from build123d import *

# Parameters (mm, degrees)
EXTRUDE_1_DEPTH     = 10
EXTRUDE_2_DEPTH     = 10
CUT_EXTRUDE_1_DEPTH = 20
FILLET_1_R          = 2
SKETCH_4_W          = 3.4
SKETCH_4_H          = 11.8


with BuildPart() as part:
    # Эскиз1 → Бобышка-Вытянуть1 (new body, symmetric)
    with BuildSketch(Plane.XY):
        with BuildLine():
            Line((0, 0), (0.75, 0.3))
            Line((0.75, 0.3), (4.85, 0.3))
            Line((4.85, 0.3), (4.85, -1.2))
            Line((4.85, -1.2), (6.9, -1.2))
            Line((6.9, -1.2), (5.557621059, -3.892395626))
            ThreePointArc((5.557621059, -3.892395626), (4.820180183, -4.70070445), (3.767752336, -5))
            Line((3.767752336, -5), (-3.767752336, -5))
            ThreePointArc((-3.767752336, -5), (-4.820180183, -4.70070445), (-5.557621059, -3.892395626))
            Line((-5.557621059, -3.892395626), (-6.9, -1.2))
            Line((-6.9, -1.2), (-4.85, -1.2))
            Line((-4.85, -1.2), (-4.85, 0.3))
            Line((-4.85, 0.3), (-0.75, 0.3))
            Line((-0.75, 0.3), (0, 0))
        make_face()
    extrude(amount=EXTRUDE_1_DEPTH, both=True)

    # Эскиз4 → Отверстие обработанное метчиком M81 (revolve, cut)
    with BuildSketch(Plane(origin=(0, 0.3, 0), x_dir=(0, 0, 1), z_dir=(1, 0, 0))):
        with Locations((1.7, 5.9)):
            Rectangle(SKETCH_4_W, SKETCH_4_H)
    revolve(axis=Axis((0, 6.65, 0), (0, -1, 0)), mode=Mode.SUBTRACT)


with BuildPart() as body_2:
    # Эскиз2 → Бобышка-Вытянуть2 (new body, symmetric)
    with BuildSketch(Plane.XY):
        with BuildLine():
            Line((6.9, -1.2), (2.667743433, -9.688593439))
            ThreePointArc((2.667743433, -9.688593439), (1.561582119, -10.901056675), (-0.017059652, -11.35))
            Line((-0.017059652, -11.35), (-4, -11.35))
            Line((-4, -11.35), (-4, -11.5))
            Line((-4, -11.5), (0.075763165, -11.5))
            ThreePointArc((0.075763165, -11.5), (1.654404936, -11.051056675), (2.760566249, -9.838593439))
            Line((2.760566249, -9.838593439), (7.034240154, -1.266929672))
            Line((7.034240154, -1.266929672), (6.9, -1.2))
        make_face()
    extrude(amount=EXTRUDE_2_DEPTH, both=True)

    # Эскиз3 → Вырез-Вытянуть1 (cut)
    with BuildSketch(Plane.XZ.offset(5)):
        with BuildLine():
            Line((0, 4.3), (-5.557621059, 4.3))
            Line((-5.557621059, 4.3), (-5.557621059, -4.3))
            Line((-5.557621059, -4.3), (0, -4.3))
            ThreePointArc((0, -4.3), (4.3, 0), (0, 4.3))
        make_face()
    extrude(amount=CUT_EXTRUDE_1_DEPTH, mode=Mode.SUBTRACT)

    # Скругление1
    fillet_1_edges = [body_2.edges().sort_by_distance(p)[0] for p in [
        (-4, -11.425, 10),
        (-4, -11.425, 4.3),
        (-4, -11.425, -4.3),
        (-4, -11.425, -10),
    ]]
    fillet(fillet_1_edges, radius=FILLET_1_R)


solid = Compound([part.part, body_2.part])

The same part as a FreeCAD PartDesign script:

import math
import FreeCAD as App
import Part
import Sketcher

V = App.Vector
Q = App.Units.Quantity


def edges_at(feature, points):
    """Names of the edges that pass closest to the given points."""
    edges = feature.Shape.Edges
    near = lambda p: min(range(len(edges)), key=lambda i: edges[i].distToShape(Part.Vertex(*p))[0])
    return sorted({f"Edge{near(p) + 1}" for p in points})


def add_polygon(sketch, points):
    """Adds a closed chain of lines whose ends are joined by coincident constraints."""
    first, n = sketch.GeometryCount, len(points)
    for a, b in zip(points, points[1:] + points[:1]):
        sketch.addGeometry(Part.LineSegment(App.Vector(*a, 0), App.Vector(*b, 0)), False)
    for i in range(n):
        sketch.addConstraint(Sketcher.Constraint("Coincident", first + i, 2, first + (i + 1) % n, 1))

doc = App.newDocument("Part")
body = doc.addObject("PartDesign::Body", "Body")

# Sketch on XY plane
sketch1 = doc.addObject("Sketcher::SketchObject", "Sketch")
body.addObject(sketch1)
sketch1.AttachmentSupport = (doc.XY_Plane, [""])
sketch1.MapMode = "FlatFace"
sketch1.addGeometry([
    Part.LineSegment(V(0.75, 0.3, 0), V(0, 0, 0)),  # 0
    Part.LineSegment(V(0, 0, 0), V(-0.75, 0.3, 0)),  # 1
    Part.LineSegment(V(-0.75, 0.3, 0), V(-4.85, 0.3, 0)),  # 2
    Part.LineSegment(V(-4.85, 0.3, 0), V(-4.85, -1.2, 0)),  # 3
    Part.LineSegment(V(-4.85, -1.2, 0), V(-6.9, -1.2, 0)),  # 4
    Part.LineSegment(V(-6.9, -1.2, 0), V(-5.557621, -3.892396, 0)),  # 5
    Part.ArcOfCircle(Part.Circle(V(-3.767752, -3, 0), V(0, 0, 1), 2), math.radians(-153.5), math.radians(-90)),  # 6
    Part.LineSegment(V(-3.767752, -5, 0), V(3.767752, -5, 0)),  # 7
    Part.ArcOfCircle(Part.Circle(V(3.767752, -3, 0), V(0, 0, 1), 2), math.radians(-90), math.radians(-26.5)),  # 8
    Part.LineSegment(V(5.557621, -3.892396, 0), V(6.9, -1.2, 0)),  # 9
    Part.LineSegment(V(6.9, -1.2, 0), V(4.85, -1.2, 0)),  # 10
    Part.LineSegment(V(4.85, -1.2, 0), V(4.85, 0.3, 0)),  # 11
    Part.LineSegment(V(4.85, 0.3, 0), V(0.75, 0.3, 0)),  # 12
], False)
sketch1.addConstraint([
    Sketcher.Constraint("Coincident", 0, 2, 1, 1),
    Sketcher.Constraint("Coincident", 1, 2, 2, 1),
    Sketcher.Constraint("Coincident", 2, 2, 3, 1),
    Sketcher.Constraint("Coincident", 3, 2, 4, 1),
    Sketcher.Constraint("Coincident", 4, 2, 5, 1),
    Sketcher.Constraint("Tangent", 5, 2, 6, 1),
    Sketcher.Constraint("Tangent", 6, 2, 7, 1),
    Sketcher.Constraint("Tangent", 7, 2, 8, 1),
    Sketcher.Constraint("Tangent", 8, 2, 9, 1),
    Sketcher.Constraint("Coincident", 9, 2, 10, 1),
    Sketcher.Constraint("Coincident", 10, 2, 11, 1),
    Sketcher.Constraint("Coincident", 11, 2, 12, 1),
    Sketcher.Constraint("Coincident", 12, 2, 0, 1),
    Sketcher.Constraint("Horizontal", 2),
    Sketcher.Constraint("Vertical", 3),
    Sketcher.Constraint("Horizontal", 4),
    Sketcher.Constraint("Horizontal", 7),
    Sketcher.Constraint("Horizontal", 10),
    Sketcher.Constraint("Vertical", 11),
    Sketcher.Constraint("Horizontal", 12),
    Sketcher.Constraint("Coincident", 0, 2, -1, 1),
    Sketcher.Constraint("Equal", 6, 8),
    Sketcher.Constraint("Symmetric", 5, 2, 8, 2, -2),
    Sketcher.Constraint("Symmetric", 3, 2, 10, 2, -2),
    Sketcher.Constraint("Symmetric", 1, 2, 12, 2, -2),
    Sketcher.Constraint("Radius", 6, Q("2 mm")),
    Sketcher.Constraint("DistanceX", 2, 2, 2, 1, Q("4.1 mm")),
    Sketcher.Constraint("DistanceY", 3, 2, 3, 1, Q("1.5 mm")),
    Sketcher.Constraint("DistanceY", 6, 3, -1, 1, Q("3 mm")),
    Sketcher.Constraint("Angle", 5, Q("-63.5 deg")),
    Sketcher.Constraint("DistanceX", 4, 2, 4, 1, Q("2.05 mm")),
    Sketcher.Constraint("DistanceY", -1, 1, 1, 2, Q("0.3 mm")),
    Sketcher.Constraint("DistanceX", 4, 2, -1, 1, Q("6.9 mm")),
])
pad1 = doc.addObject("PartDesign::Pad", "Pad")
body.addObject(pad1)
pad1.Profile = sketch1
pad1.Length = 20
pad1.Midplane = True

# Sketch on YZ plane
sketch2 = doc.addObject("Sketcher::SketchObject", "Sketch001")
body.addObject(sketch2)
sketch2.AttachmentSupport = (doc.YZ_Plane, [""])
sketch2.MapMode = "FlatFace"
add_polygon(sketch2, [(-11.5, 0), (0.3, 0), (0.3, 3.4), (-11.5, 3.4)])  # lines 0-3
sketch2.addConstraint([
    Sketcher.Constraint("Horizontal", 0),
    Sketcher.Constraint("Vertical", 1),
    Sketcher.Constraint("Horizontal", 2),
    Sketcher.Constraint("Vertical", 3),
    Sketcher.Constraint("PointOnObject", 0, 2, -1),
    Sketcher.Constraint("DistanceX", 0, 1, 0, 2, Q("11.8 mm")),
    Sketcher.Constraint("DistanceY", 1, 1, 1, 2, Q("3.4 mm")),
    Sketcher.Constraint("DistanceX", -1, 1, 0, 2, Q("0.3 mm")),
])
groove = doc.addObject("PartDesign::Groove", "Groove")
body.addObject(groove)
groove.Profile = sketch2
groove.ReferenceAxis = (sketch2, ["H_Axis"])
groove.Angle = 360
body2 = doc.addObject("PartDesign::Body", "Body001")

# Sketch on XY plane
sketch3 = doc.addObject("Sketcher::SketchObject", "Sketch002")
body2.addObject(sketch3)
sketch3.AttachmentSupport = (doc.getObject("XY_Plane001"), [""])
sketch3.MapMode = "FlatFace"
sketch3.addGeometry([
    Part.LineSegment(V(6.9, -1.2, 0), V(2.667743, -9.688593, 0)),  # 0
    Part.ArcOfCircle(Part.Circle(V(-0.01706, -8.35, 0), V(0, 0, 1), 3), math.radians(-90), math.radians(-26.5)),  # 1
    Part.LineSegment(V(-0.01706, -11.35, 0), V(-4, -11.35, 0)),  # 2
    Part.LineSegment(V(-4, -11.35, 0), V(-4, -11.5, 0)),  # 3
    Part.LineSegment(V(-4, -11.5, 0), V(0.075763, -11.5, 0)),  # 4
    Part.ArcOfCircle(Part.Circle(V(0.075763, -8.5, 0), V(0, 0, 1), 3), math.radians(-90), math.radians(-26.5)),  # 5
    Part.LineSegment(V(2.760566, -9.838593, 0), V(7.03424, -1.26693, 0)),  # 6
    Part.LineSegment(V(7.03424, -1.26693, 0), V(6.9, -1.2, 0)),  # 7
], False)
sketch3.addConstraint([
    Sketcher.Constraint("Tangent", 0, 2, 1, 2),
    Sketcher.Constraint("Tangent", 1, 1, 2, 1),
    Sketcher.Constraint("Coincident", 2, 2, 3, 1),
    Sketcher.Constraint("Coincident", 3, 2, 4, 1),
    Sketcher.Constraint("Tangent", 4, 2, 5, 1),
    Sketcher.Constraint("Tangent", 5, 2, 6, 1),
    Sketcher.Constraint("Coincident", 6, 2, 7, 1),
    Sketcher.Constraint("Coincident", 7, 2, 0, 1),
    Sketcher.Constraint("Horizontal", 2),
    Sketcher.Constraint("Vertical", 3),
    Sketcher.Constraint("Horizontal", 4),
    Sketcher.Constraint("Equal", 1, 5),
    Sketcher.Constraint("Parallel", 0, 6),
    Sketcher.Constraint("Perpendicular", 6, 7),
    Sketcher.Constraint("Radius", 1, Q("3 mm")),
    Sketcher.Constraint("DistanceX", 2, 2, -1, 1, Q("4 mm")),
    Sketcher.Constraint("Angle", 0, Q("-116.5 deg")),
    Sketcher.Constraint("DistanceY", 3, 2, 3, 1, Q("0.15 mm")),
    Sketcher.Constraint("DistanceY", 5, 3, -1, 1, Q("8.5 mm")),
    Sketcher.Constraint("DistanceX", -1, 1, 7, 2, Q("6.9 mm")),
    Sketcher.Constraint("DistanceY", 7, 2, -1, 1, Q("1.2 mm")),
    Sketcher.Constraint("Distance", 7, Q("0.15 mm")),
])
pad2 = doc.addObject("PartDesign::Pad", "Pad001")
body2.addObject(pad2)
pad2.Profile = sketch3
pad2.Length = 20
pad2.Midplane = True

# Sketch on XZ plane
sketch4 = doc.addObject("Sketcher::SketchObject", "Sketch003")
body2.addObject(sketch4)
sketch4.AttachmentSupport = (doc.getObject("XZ_Plane001"), [""])
sketch4.MapMode = "FlatFace"
sketch4.AttachmentOffset = App.Placement(V(0, 0, 5), App.Rotation())
sketch4.addGeometry([
    Part.LineSegment(V(0, 4.3, 0), V(-5.557621, 4.3, 0)),
    Part.LineSegment(V(-5.557621, 4.3, 0), V(-5.557621, -4.3, 0)),
    Part.LineSegment(V(-5.557621, -4.3, 0), V(0, -4.3, 0)),
    Part.ArcOfCircle(Part.Circle(V(0, 0, 0), V(0, 0, 1), 4.3), math.radians(-90), math.radians(90)),
], False)
sketch4.addConstraint([
    Sketcher.Constraint("Coincident", 0, 2, 1, 1),
    Sketcher.Constraint("Coincident", 1, 2, 2, 1),
    Sketcher.Constraint("Tangent", 2, 2, 3, 1),
    Sketcher.Constraint("Tangent", 3, 2, 0, 1),
    Sketcher.Constraint("Horizontal", 0),
    Sketcher.Constraint("Vertical", 1),
    Sketcher.Constraint("Horizontal", 2),
    Sketcher.Constraint("Coincident", 3, 3, -1, 1),
    Sketcher.Constraint("Radius", 3, Q("4.3 mm")),
    Sketcher.Constraint("DistanceX", 0, 2, 0, 1, Q("5.557621 mm")),
])
pocket1 = doc.addObject("PartDesign::Pocket", "Pocket")
body2.addObject(pocket1)
pocket1.Profile = sketch4
pocket1.Length = 20
pocket1.Reversed = True
doc.recompute()

fillet = doc.addObject("PartDesign::Fillet", "Fillet")
body2.addObject(fillet)
fillet.Base = (pocket1, edges_at(pocket1, [
    (-4, -11.425, 10),
    (-4, -11.425, 4.3),
    (-4, -11.425, -4.3),
    (-4, -11.425, -10),
]))
fillet.Radius = 2

doc.recompute()
